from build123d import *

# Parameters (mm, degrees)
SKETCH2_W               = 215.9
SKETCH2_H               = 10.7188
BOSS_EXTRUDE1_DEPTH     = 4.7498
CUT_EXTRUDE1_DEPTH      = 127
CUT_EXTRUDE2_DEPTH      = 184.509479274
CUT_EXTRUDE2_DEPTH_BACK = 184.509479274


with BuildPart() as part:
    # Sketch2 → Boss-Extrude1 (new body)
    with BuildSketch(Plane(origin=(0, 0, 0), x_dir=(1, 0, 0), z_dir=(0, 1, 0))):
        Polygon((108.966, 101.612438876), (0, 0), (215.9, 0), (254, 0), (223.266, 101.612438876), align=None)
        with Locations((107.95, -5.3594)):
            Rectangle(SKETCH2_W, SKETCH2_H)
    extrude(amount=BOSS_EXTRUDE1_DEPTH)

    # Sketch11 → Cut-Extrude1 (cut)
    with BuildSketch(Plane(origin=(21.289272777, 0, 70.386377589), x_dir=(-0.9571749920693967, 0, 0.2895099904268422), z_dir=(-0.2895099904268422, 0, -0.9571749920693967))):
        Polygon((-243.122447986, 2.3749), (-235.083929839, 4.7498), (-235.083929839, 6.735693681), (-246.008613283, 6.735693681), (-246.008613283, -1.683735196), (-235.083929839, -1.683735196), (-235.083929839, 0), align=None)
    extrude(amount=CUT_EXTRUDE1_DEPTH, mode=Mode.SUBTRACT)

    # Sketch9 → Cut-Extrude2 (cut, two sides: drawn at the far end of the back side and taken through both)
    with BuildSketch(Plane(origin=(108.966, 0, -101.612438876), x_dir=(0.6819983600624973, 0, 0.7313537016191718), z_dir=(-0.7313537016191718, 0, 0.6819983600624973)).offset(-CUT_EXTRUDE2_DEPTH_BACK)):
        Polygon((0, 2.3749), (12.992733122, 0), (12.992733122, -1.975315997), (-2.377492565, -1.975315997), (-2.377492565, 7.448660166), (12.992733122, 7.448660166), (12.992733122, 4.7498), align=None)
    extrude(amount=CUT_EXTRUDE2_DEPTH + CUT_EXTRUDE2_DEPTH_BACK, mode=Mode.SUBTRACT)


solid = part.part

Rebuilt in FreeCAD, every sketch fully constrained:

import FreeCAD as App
import Part
import Sketcher

V = App.Vector
Q = App.Units.Quantity

doc = App.newDocument("Part")
body = doc.addObject("PartDesign::Body", "Body")

# Sketch on XZ plane
sketch1 = body.newObject("Sketcher::SketchObject", "Sketch")
sketch1.AttachmentSupport = (doc.getObject("XZ_Plane"), [""])
sketch1.MapMode = "FlatFace"
sketch1.addGeometry(Part.LineSegment(V(108.966, -101.612439, 0), V(0, 0, 0)), False)
sketch1.addGeometry(Part.LineSegment(V(0, 0, 0), V(0, 10.7188, 0)), False)
sketch1.addGeometry(Part.LineSegment(V(0, 10.7188, 0), V(215.9, 10.7188, 0)), False)
sketch1.addGeometry(Part.LineSegment(V(215.9, 10.7188, 0), V(215.9, 0, 0)), False)
sketch1.addGeometry(Part.LineSegment(V(215.9, 0, 0), V(254, 0, 0)), False)
sketch1.addGeometry(Part.LineSegment(V(254, 0, 0), V(223.266, -101.612439, 0)), False)
sketch1.addGeometry(Part.LineSegment(V(223.266, -101.612439, 0), V(108.966, -101.612439, 0)), False)
sketch1.addConstraint(Sketcher.Constraint("Coincident", 0, 2, 1, 1))
sketch1.addConstraint(Sketcher.Constraint("Coincident", 1, 2, 2, 1))
sketch1.addConstraint(Sketcher.Constraint("Coincident", 2, 2, 3, 1))
sketch1.addConstraint(Sketcher.Constraint("Coincident", 3, 2, 4, 1))
sketch1.addConstraint(Sketcher.Constraint("Coincident", 4, 2, 5, 1))
sketch1.addConstraint(Sketcher.Constraint("Coincident", 5, 2, 6, 1))
sketch1.addConstraint(Sketcher.Constraint("Coincident", 6, 2, 0, 1))
sketch1.addConstraint(Sketcher.Constraint("Vertical", 1))
sketch1.addConstraint(Sketcher.Constraint("Horizontal", 2))
sketch1.addConstraint(Sketcher.Constraint("Vertical", 3))
sketch1.addConstraint(Sketcher.Constraint("Horizontal", 4))
sketch1.addConstraint(Sketcher.Constraint("Horizontal", 6))
sketch1.addConstraint(Sketcher.Constraint("Coincident", 0, 2, -1, 1))
sketch1.addConstraint(Sketcher.Constraint("PointOnObject", 3, 2, -1))
sketch1.addConstraint(Sketcher.Constraint("DistanceX", 2, 1, 2, 2, Q("8.5 in")))
sketch1.addConstraint(Sketcher.Constraint("DistanceX", 4, 1, 4, 2, Q("1.5 in")))
sketch1.addConstraint(Sketcher.Constraint("DistanceX", 6, 2, 6, 1, Q("4.5 in")))
sketch1.addConstraint(Sketcher.Constraint("Angle", 0, Q("137 deg")))
sketch1.addConstraint(Sketcher.Constraint("DistanceY", 1, 1, 1, 2, Q("0.422 in")))
sketch1.addConstraint(Sketcher.Constraint("DistanceX", -1, 1, 5, 2, Q("8.79 in")))
pad1 = body.newObject("PartDesign::Pad", "Pad")
pad1.Profile = sketch1
pad1.Length = Q("0.187 in")
pad1.Reversed = True

# Sketch on an angled plane
sketch2 = body.newObject("Sketcher::SketchObject", "Sketch001")
sketch2.Placement = App.Placement(V(21.289273, 0, 70.386378), App.Rotation(V(-0.957174992, 0, 0.28950999), V(0, 1, 0), V(-0.28950999, 0, -0.957174992), "ZXY"))
sketch2.addGeometry(Part.LineSegment(V(-243.122448, 2.3749, 0), V(-235.08393, 4.7498, 0)), False)
sketch2.addGeometry(Part.LineSegment(V(-235.08393, 4.7498, 0), V(-235.08393, 6.735694, 0)), False)
sketch2.addGeometry(Part.LineSegment(V(-235.08393, 6.735694, 0), V(-246.008613, 6.735694, 0)), False)
sketch2.addGeometry(Part.LineSegment(V(-246.008613, 6.735694, 0), V(-246.008613, -1.683735, 0)), False)
sketch2.addGeometry(Part.LineSegment(V(-246.008613, -1.683735, 0), V(-235.08393, -1.683735, 0)), False)
sketch2.addGeometry(Part.LineSegment(V(-235.08393, -1.683735, 0), V(-235.08393, 0, 0)), False)
sketch2.addGeometry(Part.LineSegment(V(-235.08393, 0, 0), V(-243.122448, 2.3749, 0)), False)
sketch2.addConstraint(Sketcher.Constraint("Coincident", 0, 2, 1, 1))
sketch2.addConstraint(Sketcher.Constraint("Coincident", 1, 2, 2, 1))
sketch2.addConstraint(Sketcher.Constraint("Coincident", 2, 2, 3, 1))
sketch2.addConstraint(Sketcher.Constraint("Coincident", 3, 2, 4, 1))
sketch2.addConstraint(Sketcher.Constraint("Coincident", 4, 2, 5, 1))
sketch2.addConstraint(Sketcher.Constraint("Coincident", 5, 2, 6, 1))
sketch2.addConstraint(Sketcher.Constraint("Coincident", 6, 2, 0, 1))
sketch2.addConstraint(Sketcher.Constraint("Vertical", 1))
sketch2.addConstraint(Sketcher.Constraint("Horizontal", 2))
sketch2.addConstraint(Sketcher.Constraint("Vertical", 3))
sketch2.addConstraint(Sketcher.Constraint("Horizontal", 4))
sketch2.addConstraint(Sketcher.Constraint("Vertical", 5))
sketch2.addConstraint(Sketcher.Constraint("PointOnObject", 5, 2, -1))
sketch2.addConstraint(Sketcher.Constraint("Vertical", 1, 2, 4, 2))
sketch2.addConstraint(Sketcher.Constraint("Equal", 0, 6))
sketch2.addConstraint(Sketcher.Constraint("Distance", 0, Q("0.33 in")))
sketch2.addConstraint(Sketcher.Constraint("DistanceY", -1, 1, 0, 2, Q("0.187 in")))
sketch2.addConstraint(Sketcher.Constraint("DistanceY", 3, 2, 3, 1, Q("8.419429 mm")))
sketch2.addConstraint(Sketcher.Constraint("DistanceX", 2, 2, 2, 1, Q("10.924683 mm")))
sketch2.addConstraint(Sketcher.Constraint("DistanceY", 1, 1, 1, 2, Q("1.985894 mm")))
sketch2.addConstraint(Sketcher.Constraint("DistanceX", 0, 2, -1, 1, Q("235.08393 mm")))
pocket1 = body.newObject("PartDesign::Pocket", "Pocket")
pocket1.Profile = sketch2
pocket1.Length = Q("5 in")
pocket1.Reversed = True

# Sketch on an angled plane
sketch3 = body.newObject("Sketcher::SketchObject", "Sketch002")
sketch3.Placement = App.Placement(V(108.966, 0, -101.612439), App.Rotation(V(0.68199836, 0, 0.731353702), V(0, 1, 0), V(-0.731353702, 0, 0.68199836), "ZXY"))
sketch3.addGeometry(Part.LineSegment(V(12.992733, 0, 0), V(0, 2.3749, 0)), False)
sketch3.addGeometry(Part.LineSegment(V(0, 2.3749, 0), V(12.992733, 4.7498, 0)), False)
sketch3.addGeometry(Part.LineSegment(V(12.992733, 4.7498, 0), V(12.992733, 7.44866, 0)), False)
sketch3.addGeometry(Part.LineSegment(V(12.992733, 7.44866, 0), V(-2.377493, 7.44866, 0)), False)
sketch3.addGeometry(Part.LineSegment(V(-2.377493, 7.44866, 0), V(-2.377493, -1.975316, 0)), False)
sketch3.addGeometry(Part.LineSegment(V(-2.377493, -1.975316, 0), V(12.992733, -1.975316, 0)), False)
sketch3.addGeometry(Part.LineSegment(V(12.992733, -1.975316, 0), V(12.992733, 0, 0)), False)
sketch3.addConstraint(Sketcher.Constraint("Coincident", 0, 2, 1, 1))
sketch3.addConstraint(Sketcher.Constraint("Coincident", 1, 2, 2, 1))
sketch3.addConstraint(Sketcher.Constraint("Coincident", 2, 2, 3, 1))
sketch3.addConstraint(Sketcher.Constraint("Coincident", 3, 2, 4, 1))
sketch3.addConstraint(Sketcher.Constraint("Coincident", 4, 2, 5, 1))
sketch3.addConstraint(Sketcher.Constraint("Coincident", 5, 2, 6, 1))
sketch3.addConstraint(Sketcher.Constraint("Coincident", 6, 2, 0, 1))
sketch3.addConstraint(Sketcher.Constraint("Vertical", 2))
sketch3.addConstraint(Sketcher.Constraint("Horizontal", 3))
sketch3.addConstraint(Sketcher.Constraint("Vertical", 4))
sketch3.addConstraint(Sketcher.Constraint("Horizontal", 5))
sketch3.addConstraint(Sketcher.Constraint("Vertical", 6))
sketch3.addConstraint(Sketcher.Constraint("PointOnObject", 0, 2, -2))
sketch3.addConstraint(Sketcher.Constraint("PointOnObject", 6, 2, -1))
sketch3.addConstraint(Sketcher.Constraint("Vertical", 2, 2, 5, 2))
sketch3.addConstraint(Sketcher.Constraint("Equal", 0, 1))
sketch3.addConstraint(Sketcher.Constraint("Distance", 0, Q("0.52 in")))
sketch3.addConstraint(Sketcher.Constraint("DistanceY", -1, 1, 1, 2, Q("0.187 in")))
sketch3.addConstraint(Sketcher.Constraint("DistanceY", 2, 1, 2, 2, Q("2.69886 mm")))
sketch3.addConstraint(Sketcher.Constraint("DistanceX", 3, 2, 3, 1, Q("15.370226 mm")))
sketch3.addConstraint(Sketcher.Constraint("DistanceY", 4, 2, 4, 1, Q("9.423976 mm")))
pocket2 = body.newObject("PartDesign::Pocket", "Pocket001")
pocket2.Profile = sketch3
pocket2.Type = "ThroughAll"
pocket2.Midplane = True

doc.recompute()
